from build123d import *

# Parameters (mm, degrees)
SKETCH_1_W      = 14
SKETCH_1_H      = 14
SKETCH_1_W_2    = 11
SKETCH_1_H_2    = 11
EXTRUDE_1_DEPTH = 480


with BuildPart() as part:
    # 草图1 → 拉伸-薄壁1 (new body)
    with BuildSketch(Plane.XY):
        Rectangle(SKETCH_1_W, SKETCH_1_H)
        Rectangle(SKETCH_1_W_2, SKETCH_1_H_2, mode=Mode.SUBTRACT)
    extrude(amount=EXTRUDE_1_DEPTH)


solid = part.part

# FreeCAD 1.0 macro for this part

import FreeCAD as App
import Part
import Sketcher
from FreeCAD import Vector
Q = App.Units.Quantity

doc = App.newDocument("Part")
params = doc.addObject("Spreadsheet::Sheet", "Params")
for row, (alias, value) in enumerate([
    ("sketch1_width", "14 mm"),
    ("sketch1_width2", "11 mm"),
    ("pad1_length", "480 mm"),
], start=1):
    params.set(f"A{row}", alias)
    params.set(f"B{row}", "=" + value)
    params.setAlias(f"B{row}", alias)

body = doc.addObject("PartDesign::Body", "Body")

# Sketch on XY plane
sketch1 = body.newObject("Sketcher::SketchObject", "Sketch")
sketch1.AttachmentSupport = (doc.getObject("XY_Plane"), [""])
sketch1.MapMode = "FlatFace"
sketch1.addGeometry([
    Part.LineSegment(Vector(-7, 7, 0), Vector(-7, -7, 0)),  # 0
    Part.LineSegment(Vector(-7, -7, 0), Vector(7, -7, 0)),  # 1
    Part.LineSegment(Vector(7, -7, 0), Vector(7, 7, 0)),  # 2
    Part.LineSegment(Vector(7, 7, 0), Vector(-7, 7, 0)),  # 3
    Part.LineSegment(Vector(5.5, -5.5, 0), Vector(-5.5, -5.5, 0)),  # 4
    Part.LineSegment(Vector(-5.5, -5.5, 0), Vector(-5.5, 5.5, 0)),  # 5
    Part.LineSegment(Vector(-5.5, 5.5, 0), Vector(5.5, 5.5, 0)),  # 6
    Part.LineSegment(Vector(5.5, 5.5, 0), Vector(5.5, -5.5, 0)),  # 7
], False)
sketch1.addConstraint([
    Sketcher.Constraint("Coincident", 0, 2, 1, 1),
    Sketcher.Constraint("Coincident", 1, 2, 2, 1),
    Sketcher.Constraint("Coincident", 2, 2, 3, 1),
    Sketcher.Constraint("Coincident", 3, 2, 0, 1),
    Sketcher.Constraint("Coincident", 4, 2, 5, 1),
    Sketcher.Constraint("Coincident", 5, 2, 6, 1),
    Sketcher.Constraint("Coincident", 6, 2, 7, 1),
    Sketcher.Constraint("Coincident", 7, 2, 4, 1),
    Sketcher.Constraint("Vertical", 0),
    Sketcher.Constraint("Horizontal", 1),
    Sketcher.Constraint("Vertical", 2),
    Sketcher.Constraint("Horizontal", 3),
    Sketcher.Constraint("Horizontal", 4),
    Sketcher.Constraint("Vertical", 5),
    Sketcher.Constraint("Horizontal", 6),
    Sketcher.Constraint("Vertical", 7),
    Sketcher.Constraint("Symmetric", 0, 2, 2, 2, -1, 1),
    Sketcher.Constraint("Symmetric", 4, 2, 6, 2, -1, 1),
    Sketcher.Constraint("Equal", 3, 0),
    Sketcher.Constraint("Equal", 6, 5),
    Sketcher.Constraint("DistanceX", 1, 1, 1, 2, Q("14 mm")),
    Sketcher.Constraint("DistanceX", 4, 2, 4, 1, Q("11 mm")),
])
sketch1.setExpression("Constraints[20]", "Params.sketch1_width")
sketch1.setExpression("Constraints[21]", "Params.sketch1_width2")
pad1 = body.newObject("PartDesign::Pad", "Pad")
pad1.Profile = sketch1
pad1.setExpression("Length", "Params.pad1_length")

doc.recompute()
